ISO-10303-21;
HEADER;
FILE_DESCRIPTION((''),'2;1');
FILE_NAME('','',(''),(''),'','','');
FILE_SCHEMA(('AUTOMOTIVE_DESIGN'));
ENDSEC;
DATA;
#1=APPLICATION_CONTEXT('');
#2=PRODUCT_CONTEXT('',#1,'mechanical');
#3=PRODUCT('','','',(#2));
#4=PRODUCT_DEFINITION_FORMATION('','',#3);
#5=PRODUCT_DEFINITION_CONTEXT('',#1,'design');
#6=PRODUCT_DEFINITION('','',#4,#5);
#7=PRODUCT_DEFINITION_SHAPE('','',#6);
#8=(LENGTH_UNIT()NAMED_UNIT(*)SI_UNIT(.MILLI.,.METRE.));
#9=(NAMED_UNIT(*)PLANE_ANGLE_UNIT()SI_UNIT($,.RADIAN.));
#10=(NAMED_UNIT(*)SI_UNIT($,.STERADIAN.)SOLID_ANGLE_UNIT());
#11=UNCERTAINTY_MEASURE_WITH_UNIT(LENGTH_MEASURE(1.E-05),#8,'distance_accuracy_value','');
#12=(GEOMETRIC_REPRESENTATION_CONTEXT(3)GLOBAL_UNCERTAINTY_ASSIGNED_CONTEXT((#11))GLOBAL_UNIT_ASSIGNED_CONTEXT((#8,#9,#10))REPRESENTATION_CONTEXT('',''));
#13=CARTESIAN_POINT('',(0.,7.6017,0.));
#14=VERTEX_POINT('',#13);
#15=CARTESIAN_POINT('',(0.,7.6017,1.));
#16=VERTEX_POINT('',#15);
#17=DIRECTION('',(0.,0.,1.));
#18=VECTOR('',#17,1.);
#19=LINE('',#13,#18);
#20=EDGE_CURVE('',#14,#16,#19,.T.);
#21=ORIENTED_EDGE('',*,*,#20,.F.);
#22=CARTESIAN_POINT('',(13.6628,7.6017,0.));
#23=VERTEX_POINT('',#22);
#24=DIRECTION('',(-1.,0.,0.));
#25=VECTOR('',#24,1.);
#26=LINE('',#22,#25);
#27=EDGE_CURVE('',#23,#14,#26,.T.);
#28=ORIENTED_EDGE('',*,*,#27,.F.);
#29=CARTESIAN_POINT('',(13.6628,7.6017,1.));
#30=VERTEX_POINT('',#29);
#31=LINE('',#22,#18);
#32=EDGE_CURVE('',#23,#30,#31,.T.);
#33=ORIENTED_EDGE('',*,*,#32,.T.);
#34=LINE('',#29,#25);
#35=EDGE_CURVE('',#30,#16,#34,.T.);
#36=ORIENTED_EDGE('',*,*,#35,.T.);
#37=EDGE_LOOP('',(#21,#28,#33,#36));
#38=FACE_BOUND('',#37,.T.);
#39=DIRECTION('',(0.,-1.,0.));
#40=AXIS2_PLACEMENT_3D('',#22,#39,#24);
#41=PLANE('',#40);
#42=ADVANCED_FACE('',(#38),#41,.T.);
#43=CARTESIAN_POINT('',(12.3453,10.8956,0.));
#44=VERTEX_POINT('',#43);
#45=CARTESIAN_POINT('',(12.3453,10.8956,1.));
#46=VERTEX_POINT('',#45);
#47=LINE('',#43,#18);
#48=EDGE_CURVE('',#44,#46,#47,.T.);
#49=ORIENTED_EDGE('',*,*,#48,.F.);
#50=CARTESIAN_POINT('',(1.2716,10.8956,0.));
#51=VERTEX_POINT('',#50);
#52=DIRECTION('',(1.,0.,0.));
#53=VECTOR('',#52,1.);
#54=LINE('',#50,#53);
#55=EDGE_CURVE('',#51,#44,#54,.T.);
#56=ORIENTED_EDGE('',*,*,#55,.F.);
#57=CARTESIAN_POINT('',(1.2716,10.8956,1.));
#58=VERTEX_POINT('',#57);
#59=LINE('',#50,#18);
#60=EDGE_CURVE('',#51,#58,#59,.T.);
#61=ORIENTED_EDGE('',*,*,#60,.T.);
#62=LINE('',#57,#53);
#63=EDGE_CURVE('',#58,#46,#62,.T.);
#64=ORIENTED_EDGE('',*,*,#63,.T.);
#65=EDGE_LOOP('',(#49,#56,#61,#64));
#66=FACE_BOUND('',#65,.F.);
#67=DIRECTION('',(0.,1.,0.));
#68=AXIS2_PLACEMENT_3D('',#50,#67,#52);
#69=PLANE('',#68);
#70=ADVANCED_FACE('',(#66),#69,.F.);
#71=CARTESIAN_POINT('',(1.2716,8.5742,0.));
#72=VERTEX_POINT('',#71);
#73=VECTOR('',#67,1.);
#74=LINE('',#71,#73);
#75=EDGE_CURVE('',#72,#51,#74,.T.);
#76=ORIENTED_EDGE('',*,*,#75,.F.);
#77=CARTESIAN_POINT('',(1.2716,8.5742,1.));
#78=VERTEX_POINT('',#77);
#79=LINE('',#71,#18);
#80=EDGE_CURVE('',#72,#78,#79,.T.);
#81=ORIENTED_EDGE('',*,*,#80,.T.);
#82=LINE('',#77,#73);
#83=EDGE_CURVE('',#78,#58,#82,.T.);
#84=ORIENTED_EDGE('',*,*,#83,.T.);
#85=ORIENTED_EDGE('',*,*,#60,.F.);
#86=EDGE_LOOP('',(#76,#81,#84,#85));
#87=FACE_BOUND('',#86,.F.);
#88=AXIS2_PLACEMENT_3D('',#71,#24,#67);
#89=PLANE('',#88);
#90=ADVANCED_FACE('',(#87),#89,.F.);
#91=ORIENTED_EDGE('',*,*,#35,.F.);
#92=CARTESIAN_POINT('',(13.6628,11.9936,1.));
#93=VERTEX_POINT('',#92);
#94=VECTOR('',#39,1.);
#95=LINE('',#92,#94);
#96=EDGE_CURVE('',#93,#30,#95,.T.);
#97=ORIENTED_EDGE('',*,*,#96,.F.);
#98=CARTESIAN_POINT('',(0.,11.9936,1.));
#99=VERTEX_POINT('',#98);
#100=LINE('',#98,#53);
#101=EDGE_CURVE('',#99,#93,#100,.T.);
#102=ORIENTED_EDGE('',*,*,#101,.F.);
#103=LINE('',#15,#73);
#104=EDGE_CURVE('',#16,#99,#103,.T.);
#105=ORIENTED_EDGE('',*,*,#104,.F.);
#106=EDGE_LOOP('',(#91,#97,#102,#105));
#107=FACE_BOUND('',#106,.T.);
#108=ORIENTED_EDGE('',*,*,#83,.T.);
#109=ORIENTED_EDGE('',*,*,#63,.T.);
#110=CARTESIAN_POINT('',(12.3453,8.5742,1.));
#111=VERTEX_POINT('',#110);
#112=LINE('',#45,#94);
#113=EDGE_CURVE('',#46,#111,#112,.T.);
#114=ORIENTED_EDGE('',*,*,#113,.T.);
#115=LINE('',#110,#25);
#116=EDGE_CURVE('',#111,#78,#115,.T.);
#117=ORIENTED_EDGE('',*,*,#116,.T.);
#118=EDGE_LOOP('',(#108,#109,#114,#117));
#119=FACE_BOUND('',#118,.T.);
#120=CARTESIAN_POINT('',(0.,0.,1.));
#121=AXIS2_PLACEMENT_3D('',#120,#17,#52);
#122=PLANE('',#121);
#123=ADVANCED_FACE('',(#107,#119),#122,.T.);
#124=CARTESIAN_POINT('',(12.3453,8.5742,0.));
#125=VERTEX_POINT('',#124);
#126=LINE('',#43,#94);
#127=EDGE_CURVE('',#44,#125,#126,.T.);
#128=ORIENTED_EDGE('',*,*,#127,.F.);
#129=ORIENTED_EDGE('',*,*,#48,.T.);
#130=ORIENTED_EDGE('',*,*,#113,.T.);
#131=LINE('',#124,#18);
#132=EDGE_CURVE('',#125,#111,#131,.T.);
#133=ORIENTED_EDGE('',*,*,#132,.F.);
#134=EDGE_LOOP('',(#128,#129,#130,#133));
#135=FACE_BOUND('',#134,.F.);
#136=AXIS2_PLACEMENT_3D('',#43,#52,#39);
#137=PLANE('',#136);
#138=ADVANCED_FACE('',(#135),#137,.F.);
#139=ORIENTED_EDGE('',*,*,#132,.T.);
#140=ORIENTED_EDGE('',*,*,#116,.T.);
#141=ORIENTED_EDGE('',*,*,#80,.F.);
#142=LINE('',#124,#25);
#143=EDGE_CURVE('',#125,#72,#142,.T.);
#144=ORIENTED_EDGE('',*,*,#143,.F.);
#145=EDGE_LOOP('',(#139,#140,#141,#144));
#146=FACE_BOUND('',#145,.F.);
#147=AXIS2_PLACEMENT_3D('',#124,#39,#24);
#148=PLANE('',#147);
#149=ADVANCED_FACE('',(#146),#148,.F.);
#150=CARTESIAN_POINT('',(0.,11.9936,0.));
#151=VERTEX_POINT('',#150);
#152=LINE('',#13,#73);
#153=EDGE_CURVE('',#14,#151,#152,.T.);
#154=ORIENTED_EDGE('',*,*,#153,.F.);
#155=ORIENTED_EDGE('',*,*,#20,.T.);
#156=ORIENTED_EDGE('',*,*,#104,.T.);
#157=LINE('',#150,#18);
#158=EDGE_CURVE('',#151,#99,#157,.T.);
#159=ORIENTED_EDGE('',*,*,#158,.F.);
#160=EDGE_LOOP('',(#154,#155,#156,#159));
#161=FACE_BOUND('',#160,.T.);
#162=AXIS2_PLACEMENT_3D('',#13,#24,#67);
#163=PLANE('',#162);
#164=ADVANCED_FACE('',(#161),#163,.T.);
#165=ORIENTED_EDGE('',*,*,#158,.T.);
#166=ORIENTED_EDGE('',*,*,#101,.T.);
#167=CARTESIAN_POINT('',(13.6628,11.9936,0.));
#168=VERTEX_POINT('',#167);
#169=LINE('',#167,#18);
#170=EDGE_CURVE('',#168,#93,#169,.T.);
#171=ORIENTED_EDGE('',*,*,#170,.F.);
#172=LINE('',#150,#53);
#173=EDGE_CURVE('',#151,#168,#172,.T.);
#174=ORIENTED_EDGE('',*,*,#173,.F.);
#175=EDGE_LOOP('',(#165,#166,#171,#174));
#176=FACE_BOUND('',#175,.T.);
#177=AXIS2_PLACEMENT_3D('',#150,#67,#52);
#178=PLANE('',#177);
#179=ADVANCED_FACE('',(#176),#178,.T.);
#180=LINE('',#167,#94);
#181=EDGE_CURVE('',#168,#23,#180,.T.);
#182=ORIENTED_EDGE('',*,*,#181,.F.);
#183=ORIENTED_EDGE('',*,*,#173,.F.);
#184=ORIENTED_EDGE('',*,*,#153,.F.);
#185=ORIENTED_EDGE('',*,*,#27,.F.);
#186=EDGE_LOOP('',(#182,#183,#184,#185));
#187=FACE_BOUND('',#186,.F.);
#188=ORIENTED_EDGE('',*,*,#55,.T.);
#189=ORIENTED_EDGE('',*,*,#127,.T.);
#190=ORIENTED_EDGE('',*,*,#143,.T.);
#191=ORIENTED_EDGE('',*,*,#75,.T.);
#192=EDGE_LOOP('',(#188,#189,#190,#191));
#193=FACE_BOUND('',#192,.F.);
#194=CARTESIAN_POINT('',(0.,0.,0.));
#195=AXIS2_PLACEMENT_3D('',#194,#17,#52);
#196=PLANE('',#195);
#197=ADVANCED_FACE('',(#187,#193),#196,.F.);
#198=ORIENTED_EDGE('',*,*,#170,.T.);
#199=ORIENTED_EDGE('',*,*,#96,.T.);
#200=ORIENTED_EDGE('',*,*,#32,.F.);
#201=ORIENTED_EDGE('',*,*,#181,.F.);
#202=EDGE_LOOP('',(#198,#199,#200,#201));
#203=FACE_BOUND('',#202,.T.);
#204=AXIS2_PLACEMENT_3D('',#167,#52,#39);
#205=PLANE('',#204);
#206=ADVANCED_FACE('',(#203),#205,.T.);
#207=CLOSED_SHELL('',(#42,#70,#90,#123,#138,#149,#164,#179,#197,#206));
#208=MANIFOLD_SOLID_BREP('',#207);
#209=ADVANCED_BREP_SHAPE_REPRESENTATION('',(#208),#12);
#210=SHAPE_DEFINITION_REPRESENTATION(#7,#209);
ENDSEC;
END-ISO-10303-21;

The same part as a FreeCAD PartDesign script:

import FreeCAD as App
import Part
import Sketcher
from FreeCAD import Vector
Q = App.Units.Quantity

doc = App.newDocument("Part")
body = doc.addObject("PartDesign::Body", "Body")

# Sketch on XY plane
sketch1 = body.newObject("Sketcher::SketchObject", "Sketch")
sketch1.AttachmentSupport = (doc.getObject("XY_Plane"), [""])
sketch1.MapMode = "FlatFace"
sketch1.addGeometry([
    Part.LineSegment(Vector(13.6628, 11.9936, 0), Vector(0, 11.9936, 0)),  # 0
    Part.LineSegment(Vector(0, 11.9936, 0), Vector(0, 7.6017, 0)),  # 1
    Part.LineSegment(Vector(0, 7.6017, 0), Vector(13.6628, 7.6017, 0)),  # 2
    Part.LineSegment(Vector(13.6628, 7.6017, 0), Vector(13.6628, 11.9936, 0)),  # 3
    Part.LineSegment(Vector(1.2716, 8.5742, 0), Vector(1.2716, 10.8956, 0)),  # 4
    Part.LineSegment(Vector(1.2716, 10.8956, 0), Vector(12.3453, 10.8956, 0)),  # 5
    Part.LineSegment(Vector(12.3453, 10.8956, 0), Vector(12.3453, 8.5742, 0)),  # 6
    Part.LineSegment(Vector(12.3453, 8.5742, 0), Vector(1.2716, 8.5742, 0)),  # 7
], False)
sketch1.addConstraint([
    Sketcher.Constraint("Coincident", 0, 2, 1, 1),
    Sketcher.Constraint("Coincident", 1, 2, 2, 1),
    Sketcher.Constraint("Coincident", 2, 2, 3, 1),
    Sketcher.Constraint("Coincident", 3, 2, 0, 1),
    Sketcher.Constraint("Coincident", 4, 2, 5, 1),
    Sketcher.Constraint("Coincident", 5, 2, 6, 1),
    Sketcher.Constraint("Coincident", 6, 2, 7, 1),
    Sketcher.Constraint("Coincident", 7, 2, 4, 1),
    Sketcher.Constraint("Horizontal", 0),
    Sketcher.Constraint("Vertical", 1),
    Sketcher.Constraint("Horizontal", 2),
    Sketcher.Constraint("Vertical", 3),
    Sketcher.Constraint("Vertical", 4),
    Sketcher.Constraint("Horizontal", 5),
    Sketcher.Constraint("Vertical", 6),
    Sketcher.Constraint("Horizontal", 7),
    Sketcher.Constraint("PointOnObject", 0, 2, -2),
    Sketcher.Constraint("DistanceY", 1, 2, 1, 1, Q("4.392 mm")),
    Sketcher.Constraint("DistanceX", 0, 2, 0, 1, Q("13.6628 mm")),
    Sketcher.Constraint("DistanceX", 5, 1, 5, 2, Q("11.0737 mm")),
    Sketcher.Constraint("DistanceY", 4, 1, 4, 2, Q("2.3214 mm")),
    Sketcher.Constraint("DistanceY", 4, 2, 0, 2, Q("1.098 mm")),
    Sketcher.Constraint("DistanceY", -1, 1, 0, 2, Q("11.9936 mm")),
    Sketcher.Constraint("DistanceX", -1, 1, 4, 2, Q("1.2716 mm")),
])
pad1 = body.newObject("PartDesign::Pad", "Pad")
pad1.Profile = sketch1
pad1.Length = 1

doc.recompute()
